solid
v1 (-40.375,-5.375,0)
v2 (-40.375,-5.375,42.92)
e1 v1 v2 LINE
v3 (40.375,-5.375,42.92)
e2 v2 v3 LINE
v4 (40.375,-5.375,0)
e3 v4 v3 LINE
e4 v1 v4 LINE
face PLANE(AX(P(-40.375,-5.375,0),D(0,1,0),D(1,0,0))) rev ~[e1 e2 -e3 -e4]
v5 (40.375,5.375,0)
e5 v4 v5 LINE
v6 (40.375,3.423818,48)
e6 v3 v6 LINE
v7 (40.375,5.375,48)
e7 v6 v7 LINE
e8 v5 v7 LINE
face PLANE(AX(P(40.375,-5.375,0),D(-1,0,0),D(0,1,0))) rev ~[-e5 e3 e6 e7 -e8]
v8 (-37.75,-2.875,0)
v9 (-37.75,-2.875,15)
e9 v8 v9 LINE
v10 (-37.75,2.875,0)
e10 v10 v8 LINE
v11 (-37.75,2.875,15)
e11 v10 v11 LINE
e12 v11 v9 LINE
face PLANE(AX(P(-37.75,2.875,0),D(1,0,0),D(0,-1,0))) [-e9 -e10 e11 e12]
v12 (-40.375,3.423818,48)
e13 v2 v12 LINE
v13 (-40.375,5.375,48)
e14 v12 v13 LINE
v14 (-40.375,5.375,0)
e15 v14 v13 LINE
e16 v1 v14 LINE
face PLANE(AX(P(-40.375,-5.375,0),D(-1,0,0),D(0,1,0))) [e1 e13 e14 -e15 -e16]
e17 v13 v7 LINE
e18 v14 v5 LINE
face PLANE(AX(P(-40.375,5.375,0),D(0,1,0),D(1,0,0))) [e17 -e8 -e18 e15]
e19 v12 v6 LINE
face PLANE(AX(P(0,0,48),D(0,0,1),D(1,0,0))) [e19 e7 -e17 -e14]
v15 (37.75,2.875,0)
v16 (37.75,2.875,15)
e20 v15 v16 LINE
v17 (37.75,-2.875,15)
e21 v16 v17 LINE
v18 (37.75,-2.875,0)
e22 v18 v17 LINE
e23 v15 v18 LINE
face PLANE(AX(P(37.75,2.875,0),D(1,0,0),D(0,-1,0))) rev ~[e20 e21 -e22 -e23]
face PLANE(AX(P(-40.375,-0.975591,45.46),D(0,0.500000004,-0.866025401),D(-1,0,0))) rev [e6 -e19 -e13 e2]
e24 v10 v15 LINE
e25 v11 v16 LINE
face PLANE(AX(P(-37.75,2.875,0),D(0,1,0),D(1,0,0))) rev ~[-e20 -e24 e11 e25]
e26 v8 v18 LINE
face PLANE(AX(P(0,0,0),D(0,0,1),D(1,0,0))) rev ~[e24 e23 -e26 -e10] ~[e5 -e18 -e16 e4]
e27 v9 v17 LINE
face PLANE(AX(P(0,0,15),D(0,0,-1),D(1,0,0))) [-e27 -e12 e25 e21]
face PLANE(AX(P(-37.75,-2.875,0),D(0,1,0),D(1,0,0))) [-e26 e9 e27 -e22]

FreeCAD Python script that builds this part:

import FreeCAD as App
import Part
import Sketcher

V = App.Vector
Q = App.Units.Quantity


def edges_at(feature, points):
    """Names of the edges that pass closest to the given points."""
    edges = feature.Shape.Edges
    near = lambda p: min(range(len(edges)), key=lambda i: edges[i].distToShape(Part.Vertex(*p))[0])
    return sorted({f"Edge{near(p) + 1}" for p in points})


def add_polygon(sketch, points):
    """Adds a closed chain of lines whose ends are joined by coincident constraints."""
    first, n = sketch.GeometryCount, len(points)
    for a, b in zip(points, points[1:] + points[:1]):
        sketch.addGeometry(Part.LineSegment(App.Vector(*a, 0), App.Vector(*b, 0)), False)
    for i in range(n):
        sketch.addConstraint(Sketcher.Constraint("Coincident", first + i, 2, first + (i + 1) % n, 1))

doc = App.newDocument("Part")
body = doc.addObject("PartDesign::Body", "Body")

sketch1 = doc.addObject("Sketcher::SketchObject", "Sketch")
body.addObject(sketch1)
sketch1.AttachmentSupport = (doc.XY_Plane, [""])
sketch1.MapMode = "FlatFace"
add_polygon(sketch1, [(-40.375, 5.375), (-40.375, -5.375), (40.375, -5.375), (40.375, 5.375)])
sketch1.addConstraint(Sketcher.Constraint("Vertical", 0))
sketch1.addConstraint(Sketcher.Constraint("Horizontal", 1))
sketch1.addConstraint(Sketcher.Constraint("Vertical", 2))
sketch1.addConstraint(Sketcher.Constraint("Horizontal", 3))
sketch1.addConstraint(Sketcher.Constraint("Symmetric", 0, 2, 2, 2, -1, 1))
sketch1.addConstraint(Sketcher.Constraint("DistanceX", 1, 1, 1, 2, Q("80.75 mm")))
sketch1.addConstraint(Sketcher.Constraint("DistanceY", 0, 2, 0, 1, Q("10.75 mm")))
pad1 = doc.addObject("PartDesign::Pad", "Pad")
body.addObject(pad1)
pad1.Profile = sketch1
pad1.Length = 48

sketch2 = doc.addObject("Sketcher::SketchObject", "Sketch001")
body.addObject(sketch2)
sketch2.AttachmentSupport = (doc.XY_Plane, [""])
sketch2.MapMode = "FlatFace"
add_polygon(sketch2, [(-37.75, -2.875), (-37.75, 2.875), (37.75, 2.875), (37.75, -2.875)])
sketch2.addConstraint(Sketcher.Constraint("Vertical", 0))
sketch2.addConstraint(Sketcher.Constraint("Horizontal", 1))
sketch2.addConstraint(Sketcher.Constraint("Vertical", 2))
sketch2.addConstraint(Sketcher.Constraint("Horizontal", 3))
sketch2.addConstraint(Sketcher.Constraint("Symmetric", 0, 2, 2, 2, -1, 1))
sketch2.addConstraint(Sketcher.Constraint("DistanceX", 1, 1, 1, 2, Q("75.5 mm")))
sketch2.addConstraint(Sketcher.Constraint("DistanceY", 0, 1, 0, 2, Q("5.75 mm")))
pocket1 = doc.addObject("PartDesign::Pocket", "Pocket")
body.addObject(pocket1)
pocket1.Profile = sketch2
pocket1.Length = 15
pocket1.Reversed = True
doc.recompute()

chamfer = doc.addObject("PartDesign::Chamfer", "Chamfer")
body.addObject(chamfer)
chamfer.Base = (pocket1, edges_at(pocket1, [(0, -5.375, 48)]))
chamfer.ChamferType = "Two distances"
chamfer.Size = 5.08
chamfer.Size2 = 8.798818

doc.recompute()
